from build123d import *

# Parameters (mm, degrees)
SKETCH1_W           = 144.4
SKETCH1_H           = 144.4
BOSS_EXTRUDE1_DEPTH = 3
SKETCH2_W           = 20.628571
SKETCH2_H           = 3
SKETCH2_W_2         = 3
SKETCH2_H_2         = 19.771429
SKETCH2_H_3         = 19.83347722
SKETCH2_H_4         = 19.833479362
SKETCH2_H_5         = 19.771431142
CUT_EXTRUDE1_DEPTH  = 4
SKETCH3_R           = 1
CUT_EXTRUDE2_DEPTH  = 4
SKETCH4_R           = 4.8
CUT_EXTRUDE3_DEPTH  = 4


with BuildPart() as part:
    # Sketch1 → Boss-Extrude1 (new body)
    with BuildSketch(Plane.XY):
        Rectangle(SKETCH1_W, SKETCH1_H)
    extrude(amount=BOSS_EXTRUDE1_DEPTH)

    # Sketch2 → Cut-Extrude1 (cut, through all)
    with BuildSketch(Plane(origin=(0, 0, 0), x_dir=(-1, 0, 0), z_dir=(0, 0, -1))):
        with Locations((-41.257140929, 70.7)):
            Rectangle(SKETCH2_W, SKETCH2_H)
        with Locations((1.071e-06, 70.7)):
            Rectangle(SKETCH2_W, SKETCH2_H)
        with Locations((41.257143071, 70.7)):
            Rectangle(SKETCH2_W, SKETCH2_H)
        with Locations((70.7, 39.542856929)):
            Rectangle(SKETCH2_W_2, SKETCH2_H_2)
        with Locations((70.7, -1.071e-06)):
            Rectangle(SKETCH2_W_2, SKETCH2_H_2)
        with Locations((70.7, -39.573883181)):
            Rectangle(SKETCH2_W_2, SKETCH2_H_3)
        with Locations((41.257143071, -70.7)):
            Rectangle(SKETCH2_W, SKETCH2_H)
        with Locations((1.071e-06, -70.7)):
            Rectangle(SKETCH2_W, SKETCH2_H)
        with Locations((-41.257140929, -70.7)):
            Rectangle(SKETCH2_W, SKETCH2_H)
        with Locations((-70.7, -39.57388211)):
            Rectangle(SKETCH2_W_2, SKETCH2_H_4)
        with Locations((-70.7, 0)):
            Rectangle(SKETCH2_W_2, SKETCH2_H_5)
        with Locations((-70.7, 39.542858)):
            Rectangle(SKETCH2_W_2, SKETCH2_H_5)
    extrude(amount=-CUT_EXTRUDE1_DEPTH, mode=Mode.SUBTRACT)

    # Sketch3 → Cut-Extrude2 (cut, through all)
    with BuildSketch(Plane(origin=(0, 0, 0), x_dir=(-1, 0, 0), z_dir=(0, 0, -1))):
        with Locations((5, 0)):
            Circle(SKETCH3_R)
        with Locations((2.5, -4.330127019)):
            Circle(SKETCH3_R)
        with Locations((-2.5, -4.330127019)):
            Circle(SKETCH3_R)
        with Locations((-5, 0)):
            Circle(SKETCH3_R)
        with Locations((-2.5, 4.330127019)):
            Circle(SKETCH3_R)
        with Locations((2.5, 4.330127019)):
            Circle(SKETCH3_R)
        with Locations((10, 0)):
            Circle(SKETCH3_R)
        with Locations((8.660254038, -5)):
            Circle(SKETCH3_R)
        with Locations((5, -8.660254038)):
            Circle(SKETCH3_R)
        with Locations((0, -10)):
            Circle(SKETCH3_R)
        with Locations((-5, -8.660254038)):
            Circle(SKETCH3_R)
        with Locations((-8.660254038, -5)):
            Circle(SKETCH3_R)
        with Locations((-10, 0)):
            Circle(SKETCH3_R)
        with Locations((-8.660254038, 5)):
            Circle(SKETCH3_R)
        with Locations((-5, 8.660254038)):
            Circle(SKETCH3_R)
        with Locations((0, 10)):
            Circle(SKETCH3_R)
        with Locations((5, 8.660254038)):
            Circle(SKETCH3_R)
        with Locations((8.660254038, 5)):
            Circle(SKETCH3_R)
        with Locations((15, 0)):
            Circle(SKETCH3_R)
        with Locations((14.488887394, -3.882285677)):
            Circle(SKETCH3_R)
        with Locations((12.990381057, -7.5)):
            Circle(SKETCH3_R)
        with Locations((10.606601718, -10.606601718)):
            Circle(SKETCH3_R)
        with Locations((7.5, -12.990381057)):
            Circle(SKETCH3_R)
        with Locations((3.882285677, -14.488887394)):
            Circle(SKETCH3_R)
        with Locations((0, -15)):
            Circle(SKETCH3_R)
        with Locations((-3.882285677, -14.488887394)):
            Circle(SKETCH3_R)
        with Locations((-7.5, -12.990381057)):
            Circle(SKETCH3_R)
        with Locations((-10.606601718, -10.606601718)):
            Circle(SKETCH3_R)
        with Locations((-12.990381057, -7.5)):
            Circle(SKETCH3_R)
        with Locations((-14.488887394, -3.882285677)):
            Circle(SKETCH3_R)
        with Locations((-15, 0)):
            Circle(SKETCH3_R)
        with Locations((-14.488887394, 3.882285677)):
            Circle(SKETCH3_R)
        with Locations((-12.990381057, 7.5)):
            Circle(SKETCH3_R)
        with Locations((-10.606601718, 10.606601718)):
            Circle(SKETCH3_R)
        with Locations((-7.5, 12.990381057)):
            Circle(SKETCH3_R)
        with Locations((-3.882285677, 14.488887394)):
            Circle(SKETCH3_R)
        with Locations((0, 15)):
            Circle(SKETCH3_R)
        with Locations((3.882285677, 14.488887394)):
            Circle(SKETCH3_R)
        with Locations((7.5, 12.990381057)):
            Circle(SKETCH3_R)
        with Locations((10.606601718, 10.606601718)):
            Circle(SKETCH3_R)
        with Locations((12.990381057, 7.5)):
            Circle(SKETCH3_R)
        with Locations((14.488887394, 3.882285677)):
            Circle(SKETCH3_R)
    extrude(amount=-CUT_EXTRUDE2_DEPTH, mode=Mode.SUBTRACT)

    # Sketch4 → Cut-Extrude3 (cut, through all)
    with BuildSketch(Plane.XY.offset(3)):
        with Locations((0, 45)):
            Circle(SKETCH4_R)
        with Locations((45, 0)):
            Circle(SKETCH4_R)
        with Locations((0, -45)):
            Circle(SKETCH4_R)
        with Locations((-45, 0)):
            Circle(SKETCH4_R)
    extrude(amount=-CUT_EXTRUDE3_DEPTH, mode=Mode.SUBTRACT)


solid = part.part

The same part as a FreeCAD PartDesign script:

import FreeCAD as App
import Part
import Sketcher

V = App.Vector

doc = App.newDocument("Part")
params = doc.addObject("Spreadsheet::Sheet", "Params")
for row, (alias, value) in enumerate([
    ("sketch1_width", "144.4 mm"),
    ("pad1_length", "3 mm"),
    ("sketch2_width", "3 mm"),
    ("sketch3_diameter", "2 mm"),
    ("sketch4_diameter", "9.6 mm"),
], start=1):
    params.set(f"A{row}", alias)
    params.set(f"B{row}", "=" + value)
    params.setAlias(f"B{row}", alias)

body = doc.addObject("PartDesign::Body", "Body")

sketch1 = body.newObject("Sketcher::SketchObject", "Sketch")
sketch1.AttachmentSupport = (doc.getObject("XY_Plane"), [""])
sketch1.MapMode = "FlatFace"
sketch1.addGeometry([
    Part.LineSegment(V(-72, 72, 0), V(-72, -72, 0)),
    Part.LineSegment(V(-72, -72, 0), V(72, -72, 0)),
    Part.LineSegment(V(72, -72, 0), V(72, 72, 0)),
    Part.LineSegment(V(72, 72, 0), V(-72, 72, 0)),
], False)
sketch1.addConstraint([
    Sketcher.Constraint("Coincident", 0, 2, 1, 1),
    Sketcher.Constraint("Coincident", 1, 2, 2, 1),
    Sketcher.Constraint("Coincident", 2, 2, 3, 1),
    Sketcher.Constraint("Coincident", 3, 2, 0, 1),
    Sketcher.Constraint("Vertical", 0),
    Sketcher.Constraint("Horizontal", 1),
    Sketcher.Constraint("Vertical", 2),
    Sketcher.Constraint("Horizontal", 3),
    Sketcher.Constraint("Symmetric", 0, 2, 2, 2, -1, 1),
    Sketcher.Constraint("Equal", 3, 0),
    Sketcher.Constraint("DistanceX", 1, 1, 1, 2, 144.4),
])
sketch1.setExpression("Constraints[10]", "Params.sketch1_width")
pad1 = body.newObject("PartDesign::Pad", "Pad")
pad1.Profile = sketch1
pad1.setExpression("Length", "Params.pad1_length")

sketch2 = body.newObject("Sketcher::SketchObject", "Sketch001")
sketch2.AttachmentSupport = (doc.getObject("XY_Plane"), [""])
sketch2.MapMode = "FlatFace"
sketch2.addGeometry([
    Part.LineSegment(V(51.6, 72.2, 0), V(51.6, 69.2, 0)),
    Part.LineSegment(V(51.6, 69.2, 0), V(30.9, 69.2, 0)),
    Part.LineSegment(V(30.9, 69.2, 0), V(30.9, 72.2, 0)),
    Part.LineSegment(V(30.9, 72.2, 0), V(51.6, 72.2, 0)),
    Part.LineSegment(V(10.3, 72.2, 0), V(10.3, 69.2, 0)),
    Part.LineSegment(V(10.3, 69.2, 0), V(-10.3, 69.2, 0)),
    Part.LineSegment(V(-10.3, 69.2, 0), V(-10.3, 72.2, 0)),
    Part.LineSegment(V(-10.3, 72.2, 0), V(10.3, 72.2, 0)),
    Part.LineSegment(V(-30.9, 72.2, 0), V(-30.9, 69.2, 0)),
    Part.LineSegment(V(-30.9, 69.2, 0), V(-51.6, 69.2, 0)),
    Part.LineSegment(V(-51.6, 69.2, 0), V(-51.6, 72.2, 0)),
    Part.LineSegment(V(-51.6, 72.2, 0), V(-30.9, 72.2, 0)),
    Part.LineSegment(V(-69.2, 49.4, 0), V(-69.2, 29.7, 0)),
    Part.LineSegment(V(-69.2, 29.7, 0), V(-72.2, 29.7, 0)),
    Part.LineSegment(V(-72.2, 29.7, 0), V(-72.2, 49.4, 0)),
    Part.LineSegment(V(-72.2, 49.4, 0), V(-69.2, 49.4, 0)),
    Part.LineSegment(V(-69.2, 9.9, 0), V(-69.2, -9.9, 0)),
    Part.LineSegment(V(-69.2, -9.9, 0), V(-72.2, -9.9, 0)),
    Part.LineSegment(V(-72.2, -9.9, 0), V(-72.2, 9.9, 0)),
    Part.LineSegment(V(-72.2, 9.9, 0), V(-69.2, 9.9, 0)),
    Part.LineSegment(V(-69.2, -29.7, 0), V(-69.2, -49.5, 0)),
    Part.LineSegment(V(-69.2, -49.5, 0), V(-72.2, -49.5, 0)),
    Part.LineSegment(V(-72.2, -49.5, 0), V(-72.2, -29.7, 0)),
    Part.LineSegment(V(-72.2, -29.7, 0), V(-69.2, -29.7, 0)),
    Part.LineSegment(V(-30.9, -69.2, 0), V(-30.9, -72.2, 0)),
    Part.LineSegment(V(-30.9, -72.2, 0), V(-51.6, -72.2, 0)),
    Part.LineSegment(V(-51.6, -72.2, 0), V(-51.6, -69.2, 0)),
    Part.LineSegment(V(-51.6, -69.2, 0), V(-30.9, -69.2, 0)),
    Part.LineSegment(V(10.3, -69.2, 0), V(10.3, -72.2, 0)),
    Part.LineSegment(V(10.3, -72.2, 0), V(-10.3, -72.2, 0)),
    Part.LineSegment(V(-10.3, -72.2, 0), V(-10.3, -69.2, 0)),
    Part.LineSegment(V(-10.3, -69.2, 0), V(10.3, -69.2, 0)),
    Part.LineSegment(V(51.6, -69.2, 0), V(51.6, -72.2, 0)),
    Part.LineSegment(V(51.6, -72.2, 0), V(30.9, -72.2, 0)),
    Part.LineSegment(V(30.9, -72.2, 0), V(30.9, -69.2, 0)),
    Part.LineSegment(V(30.9, -69.2, 0), V(51.6, -69.2, 0)),
    Part.LineSegment(V(72.2, -29.7, 0), V(72.2, -49.5, 0)),
    Part.LineSegment(V(72.2, -49.5, 0), V(69.2, -49.5, 0)),
    Part.LineSegment(V(69.2, -49.5, 0), V(69.2, -29.7, 0)),
    Part.LineSegment(V(69.2, -29.7, 0), V(72.2, -29.7, 0)),
    Part.LineSegment(V(72.2, 9.9, 0), V(72.2, -9.9, 0)),
    Part.LineSegment(V(72.2, -9.9, 0), V(69.2, -9.9, 0)),
    Part.LineSegment(V(69.2, -9.9, 0), V(69.2, 9.9, 0)),
    Part.LineSegment(V(69.2, 9.9, 0), V(72.2, 9.9, 0)),
    Part.LineSegment(V(72.2, 49.4, 0), V(72.2, 29.7, 0)),
    Part.LineSegment(V(72.2, 29.7, 0), V(69.2, 29.7, 0)),
    Part.LineSegment(V(69.2, 29.7, 0), V(69.2, 49.4, 0)),
    Part.LineSegment(V(69.2, 49.4, 0), V(72.2, 49.4, 0)),
], False)
sketch2.addConstraint([
    Sketcher.Constraint("Coincident", 0, 2, 1, 1),
    Sketcher.Constraint("Coincident", 1, 2, 2, 1),
    Sketcher.Constraint("Coincident", 2, 2, 3, 1),
    Sketcher.Constraint("Coincident", 3, 2, 0, 1),
    Sketcher.Constraint("Coincident", 4, 2, 5, 1),
    Sketcher.Constraint("Coincident", 5, 2, 6, 1),
    Sketcher.Constraint("Coincident", 6, 2, 7, 1),
    Sketcher.Constraint("Coincident", 7, 2, 4, 1),
    Sketcher.Constraint("Coincident", 8, 2, 9, 1),
    Sketcher.Constraint("Coincident", 9, 2, 10, 1),
    Sketcher.Constraint("Coincident", 10, 2, 11, 1),
    Sketcher.Constraint("Coincident", 11, 2, 8, 1),
    Sketcher.Constraint("Coincident", 12, 2, 13, 1),
    Sketcher.Constraint("Coincident", 13, 2, 14, 1),
    Sketcher.Constraint("Coincident", 14, 2, 15, 1),
    Sketcher.Constraint("Coincident", 15, 2, 12, 1),
    Sketcher.Constraint("Coincident", 16, 2, 17, 1),
    Sketcher.Constraint("Coincident", 17, 2, 18, 1),
    Sketcher.Constraint("Coincident", 18, 2, 19, 1),
    Sketcher.Constraint("Coincident", 19, 2, 16, 1),
    Sketcher.Constraint("Coincident", 20, 2, 21, 1),
    Sketcher.Constraint("Coincident", 21, 2, 22, 1),
    Sketcher.Constraint("Coincident", 22, 2, 23, 1),
    Sketcher.Constraint("Coincident", 23, 2, 20, 1),
    Sketcher.Constraint("Coincident", 24, 2, 25, 1),
    Sketcher.Constraint("Coincident", 25, 2, 26, 1),
    Sketcher.Constraint("Coincident", 26, 2, 27, 1),
    Sketcher.Constraint("Coincident", 27, 2, 24, 1),
    Sketcher.Constraint("Coincident", 28, 2, 29, 1),
    Sketcher.Constraint("Coincident", 29, 2, 30, 1),
    Sketcher.Constraint("Coincident", 30, 2, 31, 1),
    Sketcher.Constraint("Coincident", 31, 2, 28, 1),
    Sketcher.Constraint("Coincident", 32, 2, 33, 1),
    Sketcher.Constraint("Coincident", 33, 2, 34, 1),
    Sketcher.Constraint("Coincident", 34, 2, 35, 1),
    Sketcher.Constraint("Coincident", 35, 2, 32, 1),
    Sketcher.Constraint("Coincident", 36, 2, 37, 1),
    Sketcher.Constraint("Coincident", 37, 2, 38, 1),
    Sketcher.Constraint("Coincident", 38, 2, 39, 1),
    Sketcher.Constraint("Coincident", 39, 2, 36, 1),
    Sketcher.Constraint("Coincident", 40, 2, 41, 1),
    Sketcher.Constraint("Coincident", 41, 2, 42, 1),
    Sketcher.Constraint("Coincident", 42, 2, 43, 1),
    Sketcher.Constraint("Coincident", 43, 2, 40, 1),
    Sketcher.Constraint("Coincident", 44, 2, 45, 1),
    Sketcher.Constraint("Coincident", 45, 2, 46, 1),
    Sketcher.Constraint("Coincident", 46, 2, 47, 1),
    Sketcher.Constraint("Coincident", 47, 2, 44, 1),
    Sketcher.Constraint("Vertical", 0),
    Sketcher.Constraint("Horizontal", 1),
    Sketcher.Constraint("Vertical", 2),
    Sketcher.Constraint("Horizontal", 3),
    Sketcher.Constraint("Vertical", 4),
    Sketcher.Constraint("Horizontal", 5),
    Sketcher.Constraint("Vertical", 6),
    Sketcher.Constraint("Horizontal", 7),
    Sketcher.Constraint("Vertical", 8),
    Sketcher.Constraint("Horizontal", 9),
    Sketcher.Constraint("Vertical", 10),
    Sketcher.Constraint("Horizontal", 11),
    Sketcher.Constraint("Vertical", 12),
    Sketcher.Constraint("Horizontal", 13),
    Sketcher.Constraint("Vertical", 14),
    Sketcher.Constraint("Horizontal", 15),
    Sketcher.Constraint("Vertical", 16),
    Sketcher.Constraint("Horizontal", 17),
    Sketcher.Constraint("Vertical", 18),
    Sketcher.Constraint("Horizontal", 19),
    Sketcher.Constraint("Vertical", 20),
    Sketcher.Constraint("Horizontal", 21),
    Sketcher.Constraint("Vertical", 22),
    Sketcher.Constraint("Horizontal", 23),
    Sketcher.Constraint("Vertical", 24),
    Sketcher.Constraint("Horizontal", 25),
    Sketcher.Constraint("Vertical", 26),
    Sketcher.Constraint("Horizontal", 27),
    Sketcher.Constraint("Vertical", 28),
    Sketcher.Constraint("Horizontal", 29),
    Sketcher.Constraint("Vertical", 30),
    Sketcher.Constraint("Horizontal", 31),
    Sketcher.Constraint("Vertical", 32),
    Sketcher.Constraint("Horizontal", 33),
    Sketcher.Constraint("Vertical", 34),
    Sketcher.Constraint("Horizontal", 35),
    Sketcher.Constraint("Vertical", 36),
    Sketcher.Constraint("Horizontal", 37),
    Sketcher.Constraint("Vertical", 38),
    Sketcher.Constraint("Horizontal", 39),
    Sketcher.Constraint("Vertical", 40),
    Sketcher.Constraint("Horizontal", 41),
    Sketcher.Constraint("Vertical", 42),
    Sketcher.Constraint("Horizontal", 43),
    Sketcher.Constraint("Vertical", 44),
    Sketcher.Constraint("Horizontal", 45),
    Sketcher.Constraint("Vertical", 46),
    Sketcher.Constraint("Horizontal", 47),
    Sketcher.Constraint("Symmetric", 2, 2, 24, 2, -1, 1),
    Sketcher.Constraint("Symmetric", 0, 2, 26, 2, -1, 1),
    Sketcher.Constraint("Symmetric", 6, 2, 28, 2, -1, 1),
    Sketcher.Constraint("Symmetric", 4, 2, 30, 2, -1, 1),
    Sketcher.Constraint("Symmetric", 10, 2, 32, 2, -1, 1),
    Sketcher.Constraint("Symmetric", 8, 2, 34, 2, -1, 1),
    Sketcher.Constraint("Symmetric", 12, 2, 38, 2, -1, 1),
    Sketcher.Constraint("Symmetric", 18, 2, 40, 2, -1, 1),
    Sketcher.Constraint("Symmetric", 16, 2, 42, 2, -1, 1),
    Sketcher.Constraint("Symmetric", 22, 2, 44, 2, -1, 1),
    Sketcher.Constraint("Symmetric", 1, 2, 8, 2, -2),
    Sketcher.Constraint("Symmetric", 3, 2, 10, 2, -2),
    Sketcher.Constraint("Symmetric", 21, 2, 36, 2, -2),
    Sketcher.Constraint("Symmetric", 23, 2, 38, 2, -2),
    Sketcher.Constraint("Symmetric", 15, 2, 46, 2, -2),
    Sketcher.Constraint("Horizontal", 1, 2, 4, 2),
    Sketcher.Constraint("Horizontal", 3, 2, 6, 2),
    Sketcher.Constraint("Horizontal", 17, 2, 40, 2),
    Sketcher.Constraint("Vertical", 15, 2, 16, 2),
    Sketcher.Constraint("Vertical", 14, 2, 17, 2),
    Sketcher.Constraint("Vertical", 18, 2, 21, 2),
    Sketcher.Constraint("Vertical", 7, 2, 28, 2),
    Sketcher.Constraint("Equal", 3, 5),
    Sketcher.Constraint("Equal", 47, 0),
    Sketcher.Constraint("Equal", 14, 16),
    Sketcher.Constraint("DistanceX", 13, 2, 13, 1, 3.0),
    Sketcher.Constraint("DistanceY", -1, 1, 0, 2, 69.2),
    Sketcher.Constraint("DistanceX", 12, 2, -1, 1, 69.2),
    Sketcher.Constraint("DistanceX", 1, 2, 1, 1, 20.628571),
    Sketcher.Constraint("DistanceY", 12, 2, 12, 1, 19.771429),
    Sketcher.Constraint("DistanceY", 36, 2, 36, 1, 19.833479),
    Sketcher.Constraint("DistanceX", 9, 2, -1, 1, 51.571429),
    Sketcher.Constraint("DistanceY", -1, 1, 14, 2, 49.428571),
])
sketch2.setExpression("Constraints[121]", "Params.sketch2_width")
pocket1 = body.newObject("PartDesign::Pocket", "Pocket")
pocket1.Profile = sketch2
pocket1.Type = "ThroughAll"
pocket1.Reversed = True

sketch3 = body.newObject("Sketcher::SketchObject", "Sketch002")
sketch3.AttachmentSupport = (doc.getObject("XY_Plane"), [""])
sketch3.MapMode = "FlatFace"
sketch3.addGeometry([
    Part.Circle(V(-5, 0, 0), V(0, 0, 1), 1),
    Part.Circle(V(-2.5, -4.3, 0), V(0, 0, 1), 1),
    Part.Circle(V(2.5, -4.3, 0), V(0, 0, 1), 1),
    Part.Circle(V(5, 0, 0), V(0, 0, 1), 1),
    Part.Circle(V(2.5, 4.3, 0), V(0, 0, 1), 1),
    Part.Circle(V(-2.5, 4.3, 0), V(0, 0, 1), 1),
    Part.Circle(V(-10, 0, 0), V(0, 0, 1), 1),
    Part.Circle(V(-8.7, -5, 0), V(0, 0, 1), 1),
    Part.Circle(V(-5, -8.7, 0), V(0, 0, 1), 1),
    Part.Circle(V(0, -10, 0), V(0, 0, 1), 1),
    Part.Circle(V(5, -8.7, 0), V(0, 0, 1), 1),
    Part.Circle(V(8.7, -5, 0), V(0, 0, 1), 1),
    Part.Circle(V(10, 0, 0), V(0, 0, 1), 1),
    Part.Circle(V(8.7, 5, 0), V(0, 0, 1), 1),
    Part.Circle(V(5, 8.7, 0), V(0, 0, 1), 1),
    Part.Circle(V(0, 10, 0), V(0, 0, 1), 1),
    Part.Circle(V(-5, 8.7, 0), V(0, 0, 1), 1),
    Part.Circle(V(-8.7, 5, 0), V(0, 0, 1), 1),
    Part.Circle(V(-15, 0, 0), V(0, 0, 1), 1),
    Part.Circle(V(-14.5, -3.9, 0), V(0, 0, 1), 1),
    Part.Circle(V(-13, -7.5, 0), V(0, 0, 1), 1),
    Part.Circle(V(-10.6, -10.6, 0), V(0, 0, 1), 1),
    Part.Circle(V(-7.5, -13, 0), V(0, 0, 1), 1),
    Part.Circle(V(-3.9, -14.5, 0), V(0, 0, 1), 1),
    Part.Circle(V(0, -15, 0), V(0, 0, 1), 1),
    Part.Circle(V(3.9, -14.5, 0), V(0, 0, 1), 1),
    Part.Circle(V(7.5, -13, 0), V(0, 0, 1), 1),
    Part.Circle(V(10.6, -10.6, 0), V(0, 0, 1), 1),
    Part.Circle(V(13, -7.5, 0), V(0, 0, 1), 1),
    Part.Circle(V(14.5, -3.9, 0), V(0, 0, 1), 1),
    Part.Circle(V(15, 0, 0), V(0, 0, 1), 1),
    Part.Circle(V(14.5, 3.9, 0), V(0, 0, 1), 1),
    Part.Circle(V(13, 7.5, 0), V(0, 0, 1), 1),
    Part.Circle(V(10.6, 10.6, 0), V(0, 0, 1), 1),
    Part.Circle(V(7.5, 13, 0), V(0, 0, 1), 1),
    Part.Circle(V(3.9, 14.5, 0), V(0, 0, 1), 1),
    Part.Circle(V(0, 15, 0), V(0, 0, 1), 1),
    Part.Circle(V(-3.9, 14.5, 0), V(0, 0, 1), 1),
    Part.Circle(V(-7.5, 13, 0), V(0, 0, 1), 1),
    Part.Circle(V(-10.6, 10.6, 0), V(0, 0, 1), 1),
    Part.Circle(V(-13, 7.5, 0), V(0, 0, 1), 1),
    Part.Circle(V(-14.5, 3.9, 0), V(0, 0, 1), 1),
], False)
sketch3.addConstraint([
    Sketcher.Constraint("Equal", 0, 1),
    Sketcher.Constraint("Equal", 1, 2),
    Sketcher.Constraint("Equal", 2, 3),
    Sketcher.Constraint("Equal", 3, 4),
    Sketcher.Constraint("Equal", 4, 5),
    Sketcher.Constraint("Equal", 5, 6),
    Sketcher.Constraint("Equal", 6, 7),
    Sketcher.Constraint("Equal", 7, 8),
    Sketcher.Constraint("Equal", 8, 9),
    Sketcher.Constraint("Equal", 9, 10),
    Sketcher.Constraint("Equal", 10, 11),
    Sketcher.Constraint("Equal", 11, 12),
    Sketcher.Constraint("Equal", 12, 13),
    Sketcher.Constraint("Equal", 13, 14),
    Sketcher.Constraint("Equal", 14, 15),
    Sketcher.Constraint("Equal", 15, 16),
    Sketcher.Constraint("Equal", 16, 17),
    Sketcher.Constraint("Equal", 17, 18),
    Sketcher.Constraint("Equal", 18, 19),
    Sketcher.Constraint("Equal", 19, 20),
    Sketcher.Constraint("Equal", 20, 21),
    Sketcher.Constraint("Equal", 21, 22),
    Sketcher.Constraint("Equal", 22, 23),
    Sketcher.Constraint("Equal", 23, 24),
    Sketcher.Constraint("Equal", 24, 25),
    Sketcher.Constraint("Equal", 25, 26),
    Sketcher.Constraint("Equal", 26, 27),
    Sketcher.Constraint("Equal", 27, 28),
    Sketcher.Constraint("Equal", 28, 29),
    Sketcher.Constraint("Equal", 29, 30),
    Sketcher.Constraint("Equal", 30, 31),
    Sketcher.Constraint("Equal", 31, 32),
    Sketcher.Constraint("Equal", 32, 33),
    Sketcher.Constraint("Equal", 33, 34),
    Sketcher.Constraint("Equal", 34, 35),
    Sketcher.Constraint("Equal", 35, 36),
    Sketcher.Constraint("Equal", 36, 37),
    Sketcher.Constraint("Equal", 37, 38),
    Sketcher.Constraint("Equal", 38, 39),
    Sketcher.Constraint("Equal", 39, 40),
    Sketcher.Constraint("Equal", 40, 41),
    Sketcher.Constraint("Symmetric", 0, 3, 3, 3, -1, 1),
    Sketcher.Constraint("Symmetric", 1, 3, 4, 3, -1, 1),
    Sketcher.Constraint("Symmetric", 2, 3, 5, 3, -1, 1),
    Sketcher.Constraint("Symmetric", 6, 3, 12, 3, -1, 1),
    Sketcher.Constraint("Symmetric", 7, 3, 13, 3, -1, 1),
    Sketcher.Constraint("Symmetric", 8, 3, 14, 3, -1, 1),
    Sketcher.Constraint("Symmetric", 9, 3, 15, 3, -1, 1),
    Sketcher.Constraint("Symmetric", 10, 3, 16, 3, -1, 1),
    Sketcher.Constraint("Symmetric", 11, 3, 17, 3, -1, 1),
    Sketcher.Constraint("Symmetric", 18, 3, 30, 3, -1, 1),
    Sketcher.Constraint("Symmetric", 19, 3, 31, 3, -1, 1),
    Sketcher.Constraint("Symmetric", 20, 3, 32, 3, -1, 1),
    Sketcher.Constraint("Symmetric", 21, 3, 33, 3, -1, 1),
    Sketcher.Constraint("Symmetric", 22, 3, 34, 3, -1, 1),
    Sketcher.Constraint("Symmetric", 23, 3, 35, 3, -1, 1),
    Sketcher.Constraint("Symmetric", 24, 3, 36, 3, -1, 1),
    Sketcher.Constraint("Symmetric", 25, 3, 37, 3, -1, 1),
    Sketcher.Constraint("Symmetric", 26, 3, 38, 3, -1, 1),
    Sketcher.Constraint("Symmetric", 27, 3, 39, 3, -1, 1),
    Sketcher.Constraint("Symmetric", 28, 3, 40, 3, -1, 1),
    Sketcher.Constraint("Symmetric", 29, 3, 41, 3, -1, 1),
    Sketcher.Constraint("Symmetric", 1, 3, 2, 3, -2),
    Sketcher.Constraint("Symmetric", 8, 3, 10, 3, -2),
    Sketcher.Constraint("Symmetric", 7, 3, 11, 3, -2),
    Sketcher.Constraint("Symmetric", 23, 3, 25, 3, -2),
    Sketcher.Constraint("Symmetric", 22, 3, 26, 3, -2),
    Sketcher.Constraint("Symmetric", 21, 3, 27, 3, -2),
    Sketcher.Constraint("Symmetric", 20, 3, 28, 3, -2),
    Sketcher.Constraint("Symmetric", 19, 3, 29, 3, -2),
    Sketcher.Constraint("PointOnObject", 0, 3, -1),
    Sketcher.Constraint("PointOnObject", 6, 3, -1),
    Sketcher.Constraint("PointOnObject", 9, 3, -2),
    Sketcher.Constraint("PointOnObject", 18, 3, -1),
    Sketcher.Constraint("PointOnObject", 24, 3, -2),
    Sketcher.Constraint("Vertical", 0, 3, 8, 3),
    Sketcher.Constraint("Diameter", 0, 2.0),
    Sketcher.Constraint("DistanceX", 0, 3, -1, 1, 5.0),
    Sketcher.Constraint("DistanceX", 6, 3, -1, 1, 10.0),
    Sketcher.Constraint("DistanceY", 7, 3, -1, 1, 5.0),
    Sketcher.Constraint("DistanceY", 9, 3, -1, 1, 10.0),
    Sketcher.Constraint("DistanceX", 18, 3, -1, 1, 15.0),
    Sketcher.Constraint("DistanceY", 24, 3, -1, 1, 15.0),
    Sketcher.Constraint("DistanceX", 1, 3, 2, 3, 5.0),
    Sketcher.Constraint("DistanceY", 20, 3, -1, 1, 7.5),
    Sketcher.Constraint("DistanceX", 22, 3, -1, 1, 7.5),
    Sketcher.Constraint("DistanceX", 21, 3, -1, 1, 10.606602),
    Sketcher.Constraint("DistanceY", 21, 3, -1, 1, 10.606602),
    Sketcher.Constraint("DistanceX", 20, 3, -1, 1, 12.990381),
    Sketcher.Constraint("DistanceY", 22, 3, -1, 1, 12.990381),
    Sketcher.Constraint("DistanceY", 8, 3, 19, 3, 4.777968),
    Sketcher.Constraint("DistanceY", 23, 3, 1, 3, 10.15876),
    Sketcher.Constraint("DistanceX", 23, 3, 25, 3, 7.764571),
    Sketcher.Constraint("DistanceY", 29, 3, 31, 3, 7.764571),
    Sketcher.Constraint("DistanceY", 1, 3, -1, 1, 4.330127),
    Sketcher.Constraint("DistanceX", 7, 3, -1, 1, 8.660254),
    Sketcher.Constraint("DistanceX", 19, 3, -1, 1, 14.488887),
])
sketch3.setExpression("Constraints[76]", "Params.sketch3_diameter")
pocket2 = body.newObject("PartDesign::Pocket", "Pocket001")
pocket2.Profile = sketch3
pocket2.Type = "ThroughAll"
pocket2.Reversed = True

sketch4 = body.newObject("Sketcher::SketchObject", "Sketch003")
sketch4.AttachmentSupport = (doc.getObject("XY_Plane"), [""])
sketch4.MapMode = "FlatFace"
sketch4.AttachmentOffset = App.Placement(V(0, 0, 3), App.Rotation())
sketch4.addGeometry([
    Part.Circle(V(0, 45, 0), V(0, 0, 1), 4.8),
    Part.Circle(V(45, 0, 0), V(0, 0, 1), 4.8),
    Part.Circle(V(0, -45, 0), V(0, 0, 1), 4.8),
    Part.Circle(V(-45, 0, 0), V(0, 0, 1), 4.8),
], False)
sketch4.addConstraint([
    Sketcher.Constraint("Equal", 0, 1),
    Sketcher.Constraint("Equal", 1, 2),
    Sketcher.Constraint("Equal", 2, 3),
    Sketcher.Constraint("Symmetric", 0, 3, 2, 3, -1, 1),
    Sketcher.Constraint("Symmetric", 1, 3, 3, 3, -1, 1),
    Sketcher.Constraint("PointOnObject", 0, 3, -2),
    Sketcher.Constraint("PointOnObject", 1, 3, -1),
    Sketcher.Constraint("Diameter", 0, 9.6),
    Sketcher.Constraint("DistanceY", -1, 1, 0, 3, 45.0),
    Sketcher.Constraint("DistanceX", -1, 1, 1, 3, 45.0),
])
sketch4.setExpression("Constraints[7]", "Params.sketch4_diameter")
pocket3 = body.newObject("PartDesign::Pocket", "Pocket002")
pocket3.Profile = sketch4
pocket3.Type = "ThroughAll"

doc.recompute()
